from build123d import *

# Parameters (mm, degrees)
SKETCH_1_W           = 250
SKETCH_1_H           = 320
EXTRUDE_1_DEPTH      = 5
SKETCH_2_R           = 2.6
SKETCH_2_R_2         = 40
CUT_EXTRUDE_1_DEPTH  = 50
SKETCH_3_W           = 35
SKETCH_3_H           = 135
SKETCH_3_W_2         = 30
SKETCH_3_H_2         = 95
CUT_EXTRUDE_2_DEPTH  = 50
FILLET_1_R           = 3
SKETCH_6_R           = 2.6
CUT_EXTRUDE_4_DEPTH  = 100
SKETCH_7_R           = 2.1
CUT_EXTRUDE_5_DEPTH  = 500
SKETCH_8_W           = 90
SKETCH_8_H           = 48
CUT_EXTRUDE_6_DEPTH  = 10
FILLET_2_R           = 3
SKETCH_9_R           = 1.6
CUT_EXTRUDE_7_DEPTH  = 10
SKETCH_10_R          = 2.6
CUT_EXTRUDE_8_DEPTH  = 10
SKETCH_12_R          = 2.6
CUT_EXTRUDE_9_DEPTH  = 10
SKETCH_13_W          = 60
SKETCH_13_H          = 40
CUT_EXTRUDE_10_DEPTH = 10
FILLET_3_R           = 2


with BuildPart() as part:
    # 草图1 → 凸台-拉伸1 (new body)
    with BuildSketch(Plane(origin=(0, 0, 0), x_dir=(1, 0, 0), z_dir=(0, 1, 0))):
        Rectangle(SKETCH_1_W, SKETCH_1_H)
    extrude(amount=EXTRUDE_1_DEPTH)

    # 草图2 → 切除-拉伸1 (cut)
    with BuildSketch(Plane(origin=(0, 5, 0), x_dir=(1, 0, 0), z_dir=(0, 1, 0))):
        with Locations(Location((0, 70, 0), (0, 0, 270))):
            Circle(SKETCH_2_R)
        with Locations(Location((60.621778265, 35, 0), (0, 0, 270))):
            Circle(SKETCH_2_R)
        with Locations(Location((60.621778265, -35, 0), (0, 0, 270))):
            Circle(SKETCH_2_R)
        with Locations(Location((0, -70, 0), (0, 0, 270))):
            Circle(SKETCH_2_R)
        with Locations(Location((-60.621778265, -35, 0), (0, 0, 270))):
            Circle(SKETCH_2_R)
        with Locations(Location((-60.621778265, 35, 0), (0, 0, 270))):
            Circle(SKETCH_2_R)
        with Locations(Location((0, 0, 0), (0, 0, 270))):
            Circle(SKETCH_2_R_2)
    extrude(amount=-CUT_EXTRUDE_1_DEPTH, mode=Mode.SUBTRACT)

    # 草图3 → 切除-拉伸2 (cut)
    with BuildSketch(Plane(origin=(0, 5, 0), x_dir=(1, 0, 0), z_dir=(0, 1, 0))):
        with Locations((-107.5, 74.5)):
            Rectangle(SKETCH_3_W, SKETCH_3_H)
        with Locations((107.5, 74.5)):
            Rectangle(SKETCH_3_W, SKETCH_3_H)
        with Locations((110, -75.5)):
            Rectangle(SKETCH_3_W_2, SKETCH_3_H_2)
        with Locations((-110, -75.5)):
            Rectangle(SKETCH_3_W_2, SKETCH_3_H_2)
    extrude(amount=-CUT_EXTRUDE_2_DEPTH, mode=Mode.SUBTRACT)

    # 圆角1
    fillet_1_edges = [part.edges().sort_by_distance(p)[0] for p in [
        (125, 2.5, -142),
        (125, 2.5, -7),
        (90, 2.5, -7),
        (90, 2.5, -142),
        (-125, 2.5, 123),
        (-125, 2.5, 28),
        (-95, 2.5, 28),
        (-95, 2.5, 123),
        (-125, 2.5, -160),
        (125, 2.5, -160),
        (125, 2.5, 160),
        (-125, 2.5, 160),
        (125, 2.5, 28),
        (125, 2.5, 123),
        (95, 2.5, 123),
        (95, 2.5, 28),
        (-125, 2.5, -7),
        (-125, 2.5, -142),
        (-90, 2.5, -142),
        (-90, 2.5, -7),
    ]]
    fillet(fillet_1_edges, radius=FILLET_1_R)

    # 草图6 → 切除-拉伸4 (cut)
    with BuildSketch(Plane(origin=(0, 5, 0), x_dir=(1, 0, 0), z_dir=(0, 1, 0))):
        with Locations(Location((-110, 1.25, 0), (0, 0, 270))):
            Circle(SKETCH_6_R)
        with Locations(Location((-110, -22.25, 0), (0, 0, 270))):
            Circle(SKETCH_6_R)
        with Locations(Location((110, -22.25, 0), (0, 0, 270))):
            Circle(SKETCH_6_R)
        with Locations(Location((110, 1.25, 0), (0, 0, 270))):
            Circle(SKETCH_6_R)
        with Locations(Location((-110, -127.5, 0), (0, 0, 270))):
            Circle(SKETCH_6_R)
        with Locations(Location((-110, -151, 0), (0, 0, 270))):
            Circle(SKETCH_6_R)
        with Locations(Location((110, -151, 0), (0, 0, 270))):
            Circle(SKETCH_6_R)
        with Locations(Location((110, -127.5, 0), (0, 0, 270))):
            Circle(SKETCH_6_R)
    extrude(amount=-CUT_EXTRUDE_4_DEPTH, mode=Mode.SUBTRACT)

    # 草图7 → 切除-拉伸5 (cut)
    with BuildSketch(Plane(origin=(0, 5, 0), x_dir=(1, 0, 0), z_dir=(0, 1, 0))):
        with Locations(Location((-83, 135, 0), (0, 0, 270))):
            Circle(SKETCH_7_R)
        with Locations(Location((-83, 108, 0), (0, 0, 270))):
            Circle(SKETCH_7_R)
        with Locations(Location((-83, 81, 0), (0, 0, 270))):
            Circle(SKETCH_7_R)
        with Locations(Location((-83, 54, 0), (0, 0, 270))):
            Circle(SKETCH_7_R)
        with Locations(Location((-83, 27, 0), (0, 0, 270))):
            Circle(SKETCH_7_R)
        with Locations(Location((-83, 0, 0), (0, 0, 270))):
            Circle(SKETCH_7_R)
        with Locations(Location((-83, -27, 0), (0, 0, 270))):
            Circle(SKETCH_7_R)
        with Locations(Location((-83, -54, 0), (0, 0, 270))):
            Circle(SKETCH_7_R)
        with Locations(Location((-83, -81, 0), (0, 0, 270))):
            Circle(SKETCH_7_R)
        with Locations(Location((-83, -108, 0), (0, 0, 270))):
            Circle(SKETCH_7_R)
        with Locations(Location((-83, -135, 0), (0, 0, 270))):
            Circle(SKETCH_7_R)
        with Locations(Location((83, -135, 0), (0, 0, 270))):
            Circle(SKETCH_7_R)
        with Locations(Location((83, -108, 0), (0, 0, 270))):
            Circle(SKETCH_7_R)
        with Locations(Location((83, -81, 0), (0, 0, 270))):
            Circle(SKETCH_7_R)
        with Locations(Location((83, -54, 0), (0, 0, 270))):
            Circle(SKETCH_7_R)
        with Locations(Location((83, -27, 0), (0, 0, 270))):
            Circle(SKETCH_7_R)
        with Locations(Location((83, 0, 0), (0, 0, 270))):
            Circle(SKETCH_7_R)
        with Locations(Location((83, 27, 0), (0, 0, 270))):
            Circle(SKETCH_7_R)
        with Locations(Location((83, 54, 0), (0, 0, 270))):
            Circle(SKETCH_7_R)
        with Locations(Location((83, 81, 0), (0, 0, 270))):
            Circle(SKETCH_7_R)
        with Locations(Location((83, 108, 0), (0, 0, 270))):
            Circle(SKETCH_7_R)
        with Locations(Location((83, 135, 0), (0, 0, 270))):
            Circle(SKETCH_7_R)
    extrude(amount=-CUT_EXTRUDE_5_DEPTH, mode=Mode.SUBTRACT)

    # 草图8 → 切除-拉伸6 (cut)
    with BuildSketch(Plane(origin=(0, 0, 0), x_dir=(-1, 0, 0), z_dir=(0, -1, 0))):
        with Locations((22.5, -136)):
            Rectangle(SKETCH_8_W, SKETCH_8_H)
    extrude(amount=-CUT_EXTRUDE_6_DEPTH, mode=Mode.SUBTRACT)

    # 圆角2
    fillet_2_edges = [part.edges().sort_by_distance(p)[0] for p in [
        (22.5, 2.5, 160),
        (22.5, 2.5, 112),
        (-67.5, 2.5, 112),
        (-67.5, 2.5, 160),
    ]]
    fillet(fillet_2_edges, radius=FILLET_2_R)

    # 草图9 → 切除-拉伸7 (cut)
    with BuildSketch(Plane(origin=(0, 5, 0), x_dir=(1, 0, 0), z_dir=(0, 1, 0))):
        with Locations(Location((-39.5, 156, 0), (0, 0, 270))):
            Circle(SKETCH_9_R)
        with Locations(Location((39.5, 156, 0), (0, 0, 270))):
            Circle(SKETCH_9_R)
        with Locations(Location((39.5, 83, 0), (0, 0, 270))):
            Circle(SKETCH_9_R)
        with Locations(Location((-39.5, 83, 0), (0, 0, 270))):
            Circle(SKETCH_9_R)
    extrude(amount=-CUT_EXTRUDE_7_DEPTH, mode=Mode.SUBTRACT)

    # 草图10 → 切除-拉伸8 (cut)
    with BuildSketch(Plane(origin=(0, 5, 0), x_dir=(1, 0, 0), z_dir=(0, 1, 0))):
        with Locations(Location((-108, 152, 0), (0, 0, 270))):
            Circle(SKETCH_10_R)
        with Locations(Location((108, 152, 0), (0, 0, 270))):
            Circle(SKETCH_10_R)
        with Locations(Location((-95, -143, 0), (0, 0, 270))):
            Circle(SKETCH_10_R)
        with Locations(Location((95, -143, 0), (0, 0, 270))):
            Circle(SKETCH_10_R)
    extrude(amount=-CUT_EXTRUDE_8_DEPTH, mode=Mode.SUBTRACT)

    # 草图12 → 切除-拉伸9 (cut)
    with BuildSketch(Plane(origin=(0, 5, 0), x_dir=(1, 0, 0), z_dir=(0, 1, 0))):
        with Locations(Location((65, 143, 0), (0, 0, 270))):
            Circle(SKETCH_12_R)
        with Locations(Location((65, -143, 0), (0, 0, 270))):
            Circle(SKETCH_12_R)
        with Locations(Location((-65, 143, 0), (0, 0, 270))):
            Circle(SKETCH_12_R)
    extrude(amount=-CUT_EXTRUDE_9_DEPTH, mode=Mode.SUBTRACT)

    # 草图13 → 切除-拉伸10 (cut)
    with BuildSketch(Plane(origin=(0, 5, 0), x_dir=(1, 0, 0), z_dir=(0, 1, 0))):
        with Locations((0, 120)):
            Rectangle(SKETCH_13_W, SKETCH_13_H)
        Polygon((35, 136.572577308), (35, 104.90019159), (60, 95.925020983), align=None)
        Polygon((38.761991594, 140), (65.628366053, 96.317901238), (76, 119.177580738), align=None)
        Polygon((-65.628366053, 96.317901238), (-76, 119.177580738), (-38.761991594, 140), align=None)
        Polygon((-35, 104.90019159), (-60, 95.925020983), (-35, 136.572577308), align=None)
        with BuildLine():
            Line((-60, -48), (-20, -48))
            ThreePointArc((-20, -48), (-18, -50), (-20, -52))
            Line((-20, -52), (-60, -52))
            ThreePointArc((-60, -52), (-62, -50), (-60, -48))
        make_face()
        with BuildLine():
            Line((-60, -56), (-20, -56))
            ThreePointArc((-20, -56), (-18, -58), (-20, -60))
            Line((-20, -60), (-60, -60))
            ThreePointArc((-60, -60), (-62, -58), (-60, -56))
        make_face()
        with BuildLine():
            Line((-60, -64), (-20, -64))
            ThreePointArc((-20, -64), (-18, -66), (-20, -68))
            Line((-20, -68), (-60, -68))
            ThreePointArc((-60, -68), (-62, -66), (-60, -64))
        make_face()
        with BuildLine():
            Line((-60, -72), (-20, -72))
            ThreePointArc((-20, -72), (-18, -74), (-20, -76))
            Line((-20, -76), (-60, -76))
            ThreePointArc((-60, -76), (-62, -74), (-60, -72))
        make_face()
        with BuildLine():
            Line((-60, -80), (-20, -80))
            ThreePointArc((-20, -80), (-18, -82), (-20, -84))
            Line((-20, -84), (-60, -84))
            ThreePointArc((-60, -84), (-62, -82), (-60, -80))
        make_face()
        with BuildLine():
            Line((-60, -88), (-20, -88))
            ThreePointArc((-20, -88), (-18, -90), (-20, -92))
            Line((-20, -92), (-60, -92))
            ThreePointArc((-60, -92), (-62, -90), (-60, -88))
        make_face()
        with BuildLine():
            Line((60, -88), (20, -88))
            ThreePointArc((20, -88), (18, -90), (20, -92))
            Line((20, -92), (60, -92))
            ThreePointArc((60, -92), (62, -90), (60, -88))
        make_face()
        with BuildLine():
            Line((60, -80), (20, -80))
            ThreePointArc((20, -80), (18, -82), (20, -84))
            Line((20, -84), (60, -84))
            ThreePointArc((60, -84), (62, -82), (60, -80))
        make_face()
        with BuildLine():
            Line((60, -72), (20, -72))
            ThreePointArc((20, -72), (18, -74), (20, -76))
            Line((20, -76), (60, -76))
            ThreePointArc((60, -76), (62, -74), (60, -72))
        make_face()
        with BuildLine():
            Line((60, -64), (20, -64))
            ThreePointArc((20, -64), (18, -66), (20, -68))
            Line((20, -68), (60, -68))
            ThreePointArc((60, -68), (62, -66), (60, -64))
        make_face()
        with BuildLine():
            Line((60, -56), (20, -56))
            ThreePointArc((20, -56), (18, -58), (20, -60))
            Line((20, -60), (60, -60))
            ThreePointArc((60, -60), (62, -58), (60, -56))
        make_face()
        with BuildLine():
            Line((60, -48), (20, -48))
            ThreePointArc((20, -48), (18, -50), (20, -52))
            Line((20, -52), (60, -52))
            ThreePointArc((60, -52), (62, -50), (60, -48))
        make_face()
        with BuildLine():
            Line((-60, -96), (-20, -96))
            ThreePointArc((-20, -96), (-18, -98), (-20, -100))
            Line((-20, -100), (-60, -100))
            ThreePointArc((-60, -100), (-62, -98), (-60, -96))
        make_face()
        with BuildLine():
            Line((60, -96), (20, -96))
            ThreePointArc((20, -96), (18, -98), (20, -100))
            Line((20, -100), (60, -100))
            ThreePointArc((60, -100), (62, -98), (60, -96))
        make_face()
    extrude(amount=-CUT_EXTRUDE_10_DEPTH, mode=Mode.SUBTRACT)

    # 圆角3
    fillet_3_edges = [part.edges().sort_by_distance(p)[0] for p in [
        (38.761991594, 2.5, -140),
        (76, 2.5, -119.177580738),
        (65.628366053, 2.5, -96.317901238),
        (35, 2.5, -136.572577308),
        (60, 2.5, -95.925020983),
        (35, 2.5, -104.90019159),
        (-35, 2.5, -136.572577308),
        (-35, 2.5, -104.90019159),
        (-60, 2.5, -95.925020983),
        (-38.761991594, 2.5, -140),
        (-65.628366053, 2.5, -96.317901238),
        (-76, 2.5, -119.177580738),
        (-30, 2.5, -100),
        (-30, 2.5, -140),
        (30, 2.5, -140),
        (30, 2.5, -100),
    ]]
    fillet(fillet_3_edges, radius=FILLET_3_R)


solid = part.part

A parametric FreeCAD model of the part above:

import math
import FreeCAD as App
import Part
import Sketcher
Q = App.Units.Quantity


def edges_at(feature, points):
    """Names of the edges that pass closest to the given points."""
    edges = feature.Shape.Edges
    near = lambda p: min(range(len(edges)), key=lambda i: edges[i].distToShape(Part.Vertex(*p))[0])
    return sorted({f"Edge{near(p) + 1}" for p in points})


def add_polygon(sketch, points):
    """Adds a closed chain of lines whose ends are joined by coincident constraints."""
    first, n = sketch.GeometryCount, len(points)
    for a, b in zip(points, points[1:] + points[:1]):
        sketch.addGeometry(Part.LineSegment(App.Vector(*a, 0), App.Vector(*b, 0)), False)
    for i in range(n):
        sketch.addConstraint(Sketcher.Constraint("Coincident", first + i, 2, first + (i + 1) % n, 1))

doc = App.newDocument("Part")
body = doc.addObject("PartDesign::Body", "Body")

sketch1 = body.newObject("Sketcher::SketchObject", "Sketch")
sketch1.AttachmentSupport = (doc.getObject("XZ_Plane"), [""])
sketch1.MapMode = "FlatFace"
add_polygon(sketch1, [(-125, -160), (-125, 160), (125, 160), (125, -160)])
sketch1.addConstraint([
    Sketcher.Constraint("Vertical", 0),
    Sketcher.Constraint("Horizontal", 1),
    Sketcher.Constraint("Vertical", 2),
    Sketcher.Constraint("Horizontal", 3),
    Sketcher.Constraint("Symmetric", 0, 2, 2, 2, -1, 1),
    Sketcher.Constraint("DistanceX", 1, 1, 1, 2, Q("250 mm")),
    Sketcher.Constraint("DistanceY", 0, 1, 0, 2, Q("320 mm")),
])
pad1 = body.newObject("PartDesign::Pad", "Pad")
pad1.Profile = sketch1
pad1.Length = 5
pad1.Reversed = True

sketch2 = body.newObject("Sketcher::SketchObject", "Sketch001")
sketch2.AttachmentSupport = (doc.getObject("XZ_Plane"), [""])
sketch2.MapMode = "FlatFace"
sketch2.AttachmentOffset = App.Placement(App.Vector(0, 0, -5), App.Rotation())
sketch2.addGeometry([
    Part.Circle(App.Vector(0, -70, 0), App.Vector(0, 0, 1), 2.6),
    Part.Circle(App.Vector(60.6, -35, 0), App.Vector(0, 0, 1), 2.6),
    Part.Circle(App.Vector(60.6, 35, 0), App.Vector(0, 0, 1), 2.6),
    Part.Circle(App.Vector(0, 70, 0), App.Vector(0, 0, 1), 2.6),
    Part.Circle(App.Vector(-60.6, 35, 0), App.Vector(0, 0, 1), 2.6),
    Part.Circle(App.Vector(-60.6, -35, 0), App.Vector(0, 0, 1), 2.6),
    Part.Circle(App.Vector(0, 0, 0), App.Vector(0, 0, 1), 40),
], False)
sketch2.addConstraint([
    Sketcher.Constraint("Coincident", 6, 3, -1, 1),
    Sketcher.Constraint("Equal", 0, 1),
    Sketcher.Constraint("Equal", 1, 2),
    Sketcher.Constraint("Equal", 2, 3),
    Sketcher.Constraint("Equal", 3, 4),
    Sketcher.Constraint("Equal", 4, 5),
    Sketcher.Constraint("Symmetric", 0, 3, 3, 3, -1, 1),
    Sketcher.Constraint("Symmetric", 1, 3, 4, 3, -1, 1),
    Sketcher.Constraint("Symmetric", 2, 3, 5, 3, -1, 1),
    Sketcher.Constraint("Symmetric", 2, 3, 4, 3, -2),
    Sketcher.Constraint("PointOnObject", 0, 3, -2),
    Sketcher.Constraint("Diameter", 6, Q("80 mm")),
    Sketcher.Constraint("Diameter", 0, Q("5.2 mm")),
    Sketcher.Constraint("DistanceY", 0, 3, -1, 1, Q("70 mm")),
    Sketcher.Constraint("DistanceY", 1, 3, -1, 1, Q("35 mm")),
    Sketcher.Constraint("DistanceX", -1, 1, 1, 3, Q("60.621778 mm")),
])
pocket1 = body.newObject("PartDesign::Pocket", "Pocket")
pocket1.Profile = sketch2
pocket1.Length = 50
pocket1.Reversed = True

sketch3 = body.newObject("Sketcher::SketchObject", "Sketch002")
sketch3.AttachmentSupport = (doc.getObject("XZ_Plane"), [""])
sketch3.MapMode = "FlatFace"
sketch3.AttachmentOffset = App.Placement(App.Vector(0, 0, -5), App.Rotation())
add_polygon(sketch3, [(-125, -142), (-125, -7), (-90, -7), (-90, -142)])
add_polygon(sketch3, [(90, -142), (90, -7), (125, -7), (125, -142)])
add_polygon(sketch3, [(95, 28), (95, 123), (125, 123), (125, 28)])
add_polygon(sketch3, [(-125, 28), (-125, 123), (-95, 123), (-95, 28)])
sketch3.addConstraint([
    Sketcher.Constraint("Vertical", 0),
    Sketcher.Constraint("Horizontal", 1),
    Sketcher.Constraint("Vertical", 2),
    Sketcher.Constraint("Horizontal", 3),
    Sketcher.Constraint("Vertical", 4),
    Sketcher.Constraint("Horizontal", 5),
    Sketcher.Constraint("Vertical", 6),
    Sketcher.Constraint("Horizontal", 7),
    Sketcher.Constraint("Vertical", 8),
    Sketcher.Constraint("Horizontal", 9),
    Sketcher.Constraint("Vertical", 10),
    Sketcher.Constraint("Horizontal", 11),
    Sketcher.Constraint("Vertical", 12),
    Sketcher.Constraint("Horizontal", 13),
    Sketcher.Constraint("Vertical", 14),
    Sketcher.Constraint("Horizontal", 15),
    Sketcher.Constraint("Symmetric", 1, 2, 4, 2, -2),
    Sketcher.Constraint("Symmetric", 3, 2, 6, 2, -2),
    Sketcher.Constraint("Symmetric", 9, 2, 12, 2, -2),
    Sketcher.Constraint("Symmetric", 11, 2, 14, 2, -2),
    Sketcher.Constraint("Vertical", 6, 2, 9, 2),
    Sketcher.Constraint("DistanceX", 1, 1, 1, 2, Q("35 mm")),
    Sketcher.Constraint("DistanceX", 9, 1, 9, 2, Q("30 mm")),
    Sketcher.Constraint("DistanceY", 0, 1, 0, 2, Q("135 mm")),
    Sketcher.Constraint("DistanceY", 8, 1, 8, 2, Q("95 mm")),
    Sketcher.Constraint("DistanceX", 0, 2, -1, 1, Q("125 mm")),
    Sketcher.Constraint("DistanceY", 0, 2, -1, 1, Q("7 mm")),
    Sketcher.Constraint("DistanceY", -1, 1, 8, 2, Q("123 mm")),
])
pocket2 = body.newObject("PartDesign::Pocket", "Pocket001")
pocket2.Profile = sketch3
pocket2.Length = 50
pocket2.Reversed = True
doc.recompute()

fillet = body.newObject("PartDesign::Fillet", "Fillet")
fillet.Base = (pocket2, edges_at(pocket2, [
    (125, 2.5, -142),
    (125, 2.5, -7),
    (90, 2.5, -7),
    (90, 2.5, -142),
    (-125, 2.5, 123),
    (-125, 2.5, 28),
    (-95, 2.5, 28),
    (-95, 2.5, 123),
    (-125, 2.5, -160),
    (125, 2.5, -160),
    (125, 2.5, 160),
    (-125, 2.5, 160),
    (125, 2.5, 28),
    (125, 2.5, 123),
    (95, 2.5, 123),
    (95, 2.5, 28),
    (-125, 2.5, -7),
    (-125, 2.5, -142),
    (-90, 2.5, -142),
    (-90, 2.5, -7),
]))
fillet.Radius = 3

sketch4 = body.newObject("Sketcher::SketchObject", "Sketch003")
sketch4.AttachmentSupport = (doc.getObject("XZ_Plane"), [""])
sketch4.MapMode = "FlatFace"
sketch4.AttachmentOffset = App.Placement(App.Vector(0, 0, -5), App.Rotation())
sketch4.addGeometry([
    Part.Circle(App.Vector(-110, -1.2, 0), App.Vector(0, 0, 1), 2.6),
    Part.Circle(App.Vector(-110, 22.2, 0), App.Vector(0, 0, 1), 2.6),
    Part.Circle(App.Vector(110, 22.2, 0), App.Vector(0, 0, 1), 2.6),
    Part.Circle(App.Vector(110, -1.2, 0), App.Vector(0, 0, 1), 2.6),
    Part.Circle(App.Vector(-110, 127.5, 0), App.Vector(0, 0, 1), 2.6),
    Part.Circle(App.Vector(-110, 151, 0), App.Vector(0, 0, 1), 2.6),
    Part.Circle(App.Vector(110, 151, 0), App.Vector(0, 0, 1), 2.6),
    Part.Circle(App.Vector(110, 127.5, 0), App.Vector(0, 0, 1), 2.6),
], False)
sketch4.addConstraint([
    Sketcher.Constraint("Equal", 0, 1),
    Sketcher.Constraint("Equal", 1, 2),
    Sketcher.Constraint("Equal", 2, 3),
    Sketcher.Constraint("Equal", 3, 4),
    Sketcher.Constraint("Equal", 4, 5),
    Sketcher.Constraint("Equal", 5, 6),
    Sketcher.Constraint("Equal", 6, 7),
    Sketcher.Constraint("Symmetric", 1, 3, 2, 3, -2),
    Sketcher.Constraint("Symmetric", 0, 3, 3, 3, -2),
    Sketcher.Constraint("Symmetric", 5, 3, 6, 3, -2),
    Sketcher.Constraint("Symmetric", 4, 3, 7, 3, -2),
    Sketcher.Constraint("Vertical", 0, 3, 1, 3),
    Sketcher.Constraint("Vertical", 1, 3, 4, 3),
    Sketcher.Constraint("Vertical", 4, 3, 5, 3),
    Sketcher.Constraint("Diameter", 0, Q("5.2 mm")),
    Sketcher.Constraint("DistanceX", 0, 3, -1, 1, Q("110 mm")),
    Sketcher.Constraint("DistanceY", -1, 1, 5, 3, Q("151 mm")),
    Sketcher.Constraint("DistanceY", -1, 1, 4, 3, Q("127.5 mm")),
    Sketcher.Constraint("DistanceY", 0, 3, 1, 3, Q("23.5 mm")),
    Sketcher.Constraint("DistanceY", 0, 3, -1, 1, Q("1.25 mm")),
])
pocket3 = body.newObject("PartDesign::Pocket", "Pocket002")
pocket3.Profile = sketch4
pocket3.Length = 100
pocket3.Reversed = True

sketch5 = body.newObject("Sketcher::SketchObject", "Sketch004")
sketch5.AttachmentSupport = (doc.getObject("XZ_Plane"), [""])
sketch5.MapMode = "FlatFace"
sketch5.AttachmentOffset = App.Placement(App.Vector(0, 0, -5), App.Rotation())
sketch5.addGeometry([
    Part.Circle(App.Vector(-83, -135, 0), App.Vector(0, 0, 1), 2.1),
    Part.Circle(App.Vector(-83, -108, 0), App.Vector(0, 0, 1), 2.1),
    Part.Circle(App.Vector(-83, -81, 0), App.Vector(0, 0, 1), 2.1),
    Part.Circle(App.Vector(-83, -54, 0), App.Vector(0, 0, 1), 2.1),
    Part.Circle(App.Vector(-83, -27, 0), App.Vector(0, 0, 1), 2.1),
    Part.Circle(App.Vector(-83, 0, 0), App.Vector(0, 0, 1), 2.1),
    Part.Circle(App.Vector(-83, 27, 0), App.Vector(0, 0, 1), 2.1),
    Part.Circle(App.Vector(-83, 54, 0), App.Vector(0, 0, 1), 2.1),
    Part.Circle(App.Vector(-83, 81, 0), App.Vector(0, 0, 1), 2.1),
    Part.Circle(App.Vector(-83, 108, 0), App.Vector(0, 0, 1), 2.1),
    Part.Circle(App.Vector(-83, 135, 0), App.Vector(0, 0, 1), 2.1),
    Part.Circle(App.Vector(83, 135, 0), App.Vector(0, 0, 1), 2.1),
    Part.Circle(App.Vector(83, 108, 0), App.Vector(0, 0, 1), 2.1),
    Part.Circle(App.Vector(83, 81, 0), App.Vector(0, 0, 1), 2.1),
    Part.Circle(App.Vector(83, 54, 0), App.Vector(0, 0, 1), 2.1),
    Part.Circle(App.Vector(83, 27, 0), App.Vector(0, 0, 1), 2.1),
    Part.Circle(App.Vector(83, 0, 0), App.Vector(0, 0, 1), 2.1),
    Part.Circle(App.Vector(83, -27, 0), App.Vector(0, 0, 1), 2.1),
    Part.Circle(App.Vector(83, -54, 0), App.Vector(0, 0, 1), 2.1),
    Part.Circle(App.Vector(83, -81, 0), App.Vector(0, 0, 1), 2.1),
    Part.Circle(App.Vector(83, -108, 0), App.Vector(0, 0, 1), 2.1),
    Part.Circle(App.Vector(83, -135, 0), App.Vector(0, 0, 1), 2.1),
], False)
sketch5.addConstraint([
    Sketcher.Constraint("Equal", 0, 1),
    Sketcher.Constraint("Equal", 1, 2),
    Sketcher.Constraint("Equal", 2, 3),
    Sketcher.Constraint("Equal", 3, 4),
    Sketcher.Constraint("Equal", 4, 5),
    Sketcher.Constraint("Equal", 5, 6),
    Sketcher.Constraint("Equal", 6, 7),
    Sketcher.Constraint("Equal", 7, 8),
    Sketcher.Constraint("Equal", 8, 9),
    Sketcher.Constraint("Equal", 9, 10),
    Sketcher.Constraint("Equal", 10, 11),
    Sketcher.Constraint("Equal", 11, 12),
    Sketcher.Constraint("Equal", 12, 13),
    Sketcher.Constraint("Equal", 13, 14),
    Sketcher.Constraint("Equal", 14, 15),
    Sketcher.Constraint("Equal", 15, 16),
    Sketcher.Constraint("Equal", 16, 17),
    Sketcher.Constraint("Equal", 17, 18),
    Sketcher.Constraint("Equal", 18, 19),
    Sketcher.Constraint("Equal", 19, 20),
    Sketcher.Constraint("Equal", 20, 21),
    Sketcher.Constraint("Symmetric", 0, 3, 11, 3, -1, 1),
    Sketcher.Constraint("Symmetric", 1, 3, 12, 3, -1, 1),
    Sketcher.Constraint("Symmetric", 2, 3, 13, 3, -1, 1),
    Sketcher.Constraint("Symmetric", 3, 3, 14, 3, -1, 1),
    Sketcher.Constraint("Symmetric", 4, 3, 15, 3, -1, 1),
    Sketcher.Constraint("Symmetric", 5, 3, 16, 3, -1, 1),
    Sketcher.Constraint("Symmetric", 6, 3, 17, 3, -1, 1),
    Sketcher.Constraint("Symmetric", 7, 3, 18, 3, -1, 1),
    Sketcher.Constraint("Symmetric", 8, 3, 19, 3, -1, 1),
    Sketcher.Constraint("Symmetric", 9, 3, 20, 3, -1, 1),
    Sketcher.Constraint("Symmetric", 10, 3, 21, 3, -1, 1),
    Sketcher.Constraint("Symmetric", 10, 3, 11, 3, -2),
    Sketcher.Constraint("Symmetric", 9, 3, 12, 3, -2),
    Sketcher.Constraint("Symmetric", 8, 3, 13, 3, -2),
    Sketcher.Constraint("Symmetric", 7, 3, 14, 3, -2),
    Sketcher.Constraint("Symmetric", 6, 3, 15, 3, -2),
    Sketcher.Constraint("PointOnObject", 5, 3, -1),
    Sketcher.Constraint("Vertical", 0, 3, 1, 3),
    Sketcher.Constraint("Vertical", 1, 3, 2, 3),
    Sketcher.Constraint("Vertical", 2, 3, 3, 3),
    Sketcher.Constraint("Vertical", 3, 3, 4, 3),
    Sketcher.Constraint("Vertical", 4, 3, 5, 3),
    Sketcher.Constraint("Diameter", 0, Q("4.2 mm")),
    Sketcher.Constraint("DistanceX", 0, 3, -1, 1, Q("83 mm")),
    Sketcher.Constraint("DistanceY", 0, 3, -1, 1, Q("135 mm")),
    Sketcher.Constraint("DistanceY", 1, 3, -1, 1, Q("108 mm")),
    Sketcher.Constraint("DistanceY", 2, 3, -1, 1, Q("81 mm")),
    Sketcher.Constraint("DistanceY", 3, 3, -1, 1, Q("54 mm")),
    Sketcher.Constraint("DistanceY", 4, 3, -1, 1, Q("27 mm")),
])
pocket4 = body.newObject("PartDesign::Pocket", "Pocket003")
pocket4.Profile = sketch5
pocket4.Length = 500
pocket4.Reversed = True

sketch6 = body.newObject("Sketcher::SketchObject", "Sketch005")
sketch6.AttachmentSupport = (doc.getObject("XZ_Plane"), [""])
sketch6.MapMode = "FlatFace"
add_polygon(sketch6, [(22, 112), (22, 160), (-68, 160), (-68, 112)])
sketch6.addConstraint([
    Sketcher.Constraint("Vertical", 0),
    Sketcher.Constraint("Horizontal", 1),
    Sketcher.Constraint("Vertical", 2),
    Sketcher.Constraint("Horizontal", 3),
    Sketcher.Constraint("DistanceX", 1, 2, 1, 1, Q("90 mm")),
    Sketcher.Constraint("DistanceY", 0, 1, 0, 2, Q("48 mm")),
    Sketcher.Constraint("DistanceY", -1, 1, 0, 2, Q("160 mm")),
    Sketcher.Constraint("DistanceX", -1, 1, 0, 2, Q("22.5 mm")),
])
pocket5 = body.newObject("PartDesign::Pocket", "Pocket004")
pocket5.Profile = sketch6
pocket5.Length = 10
doc.recompute()

fillet2 = body.newObject("PartDesign::Fillet", "Fillet001")
fillet2.Base = (pocket5, edges_at(pocket5, [
    (22.5, 2.5, 160),
    (22.5, 2.5, 112),
    (-67.5, 2.5, 112),
    (-67.5, 2.5, 160),
]))
fillet2.Radius = 3

sketch7 = body.newObject("Sketcher::SketchObject", "Sketch006")
sketch7.AttachmentSupport = (doc.getObject("XZ_Plane"), [""])
sketch7.MapMode = "FlatFace"
sketch7.AttachmentOffset = App.Placement(App.Vector(0, 0, -5), App.Rotation())
sketch7.addGeometry([
    Part.Circle(App.Vector(-39.5, -156, 0), App.Vector(0, 0, 1), 1.6),
    Part.Circle(App.Vector(39.5, -156, 0), App.Vector(0, 0, 1), 1.6),
    Part.Circle(App.Vector(39.5, -83, 0), App.Vector(0, 0, 1), 1.6),
    Part.Circle(App.Vector(-39.5, -83, 0), App.Vector(0, 0, 1), 1.6),
], False)
sketch7.addConstraint([
    Sketcher.Constraint("Equal", 0, 1),
    Sketcher.Constraint("Equal", 1, 2),
    Sketcher.Constraint("Equal", 2, 3),
    Sketcher.Constraint("Symmetric", 0, 3, 1, 3, -2),
    Sketcher.Constraint("Symmetric", 2, 3, 3, 3, -2),
    Sketcher.Constraint("Vertical", 1, 3, 2, 3),
    Sketcher.Constraint("Diameter", 0, Q("3.2 mm")),
    Sketcher.Constraint("DistanceY", 0, 3, -1, 1, Q("156 mm")),
    Sketcher.Constraint("DistanceY", 2, 3, -1, 1, Q("83 mm")),
    Sketcher.Constraint("DistanceX", 0, 3, 1, 3, Q("79 mm")),
])
pocket6 = body.newObject("PartDesign::Pocket", "Pocket005")
pocket6.Profile = sketch7
pocket6.Length = 10
pocket6.Reversed = True

sketch8 = body.newObject("Sketcher::SketchObject", "Sketch007")
sketch8.AttachmentSupport = (doc.getObject("XZ_Plane"), [""])
sketch8.MapMode = "FlatFace"
sketch8.AttachmentOffset = App.Placement(App.Vector(0, 0, -5), App.Rotation())
sketch8.addGeometry([
    Part.Circle(App.Vector(-108, -152, 0), App.Vector(0, 0, 1), 2.6),
    Part.Circle(App.Vector(108, -152, 0), App.Vector(0, 0, 1), 2.6),
    Part.Circle(App.Vector(-95, 143, 0), App.Vector(0, 0, 1), 2.6),
    Part.Circle(App.Vector(95, 143, 0), App.Vector(0, 0, 1), 2.6),
], False)
sketch8.addConstraint([
    Sketcher.Constraint("Equal", 0, 1),
    Sketcher.Constraint("Equal", 1, 2),
    Sketcher.Constraint("Equal", 2, 3),
    Sketcher.Constraint("Symmetric", 0, 3, 1, 3, -2),
    Sketcher.Constraint("Symmetric", 2, 3, 3, 3, -2),
    Sketcher.Constraint("Diameter", 0, Q("5.2 mm")),
    Sketcher.Constraint("DistanceX", 0, 3, -1, 1, Q("108 mm")),
    Sketcher.Constraint("DistanceY", 0, 3, -1, 1, Q("152 mm")),
    Sketcher.Constraint("DistanceX", 2, 3, -1, 1, Q("95 mm")),
    Sketcher.Constraint("DistanceY", -1, 1, 2, 3, Q("143 mm")),
])
pocket7 = body.newObject("PartDesign::Pocket", "Pocket006")
pocket7.Profile = sketch8
pocket7.Length = 10
pocket7.Reversed = True

sketch9 = body.newObject("Sketcher::SketchObject", "Sketch008")
sketch9.AttachmentSupport = (doc.getObject("XZ_Plane"), [""])
sketch9.MapMode = "FlatFace"
sketch9.AttachmentOffset = App.Placement(App.Vector(0, 0, -5), App.Rotation())
sketch9.addGeometry([
    Part.Circle(App.Vector(65, -143, 0), App.Vector(0, 0, 1), 2.6),
    Part.Circle(App.Vector(65, 143, 0), App.Vector(0, 0, 1), 2.6),
    Part.Circle(App.Vector(-65, -143, 0), App.Vector(0, 0, 1), 2.6),
], False)
sketch9.addConstraint([
    Sketcher.Constraint("Equal", 0, 1),
    Sketcher.Constraint("Equal", 1, 2),
    Sketcher.Constraint("Symmetric", 1, 3, 2, 3, -1, 1),
    Sketcher.Constraint("Symmetric", 0, 3, 2, 3, -2),
    Sketcher.Constraint("Diameter", 0, Q("5.2 mm")),
    Sketcher.Constraint("DistanceX", -1, 1, 0, 3, Q("65 mm")),
    Sketcher.Constraint("DistanceY", 0, 3, -1, 1, Q("143 mm")),
])
pocket8 = body.newObject("PartDesign::Pocket", "Pocket007")
pocket8.Profile = sketch9
pocket8.Length = 10
pocket8.Reversed = True

sketch10 = body.newObject("Sketcher::SketchObject", "Sketch009")
sketch10.AttachmentSupport = (doc.getObject("XZ_Plane"), [""])
sketch10.MapMode = "FlatFace"
sketch10.AttachmentOffset = App.Placement(App.Vector(0, 0, -5), App.Rotation())
add_polygon(sketch10, [(-30, -140), (-30, -100), (30, -100), (30, -140)])
add_polygon(sketch10, [(35, -136.6), (35, -104.9), (60, -95.9)])
add_polygon(sketch10, [(38.8, -140), (65.6, -96.3), (76, -119.2)])
add_polygon(sketch10, [(-76, -119.2), (-65.6, -96.3), (-38.8, -140)])
add_polygon(sketch10, [(-60, -95.9), (-35, -104.9), (-35, -136.6)])
sketch10.addGeometry(Part.LineSegment(App.Vector(-20, 48, 0), App.Vector(-60, 48, 0)), False)
sketch10.addGeometry(Part.ArcOfCircle(Part.Circle(App.Vector(-60, 50, 0), App.Vector(0, 0, 1), 2), math.radians(90), math.radians(270)), False)
sketch10.addGeometry(Part.LineSegment(App.Vector(-60, 52, 0), App.Vector(-20, 52, 0)), False)
sketch10.addGeometry(Part.ArcOfCircle(Part.Circle(App.Vector(-20, 50, 0), App.Vector(0, 0, 1), 2), math.radians(-90), math.radians(90)), False)
sketch10.addGeometry(Part.LineSegment(App.Vector(-20, 56, 0), App.Vector(-60, 56, 0)), False)
sketch10.addGeometry(Part.ArcOfCircle(Part.Circle(App.Vector(-60, 58, 0), App.Vector(0, 0, 1), 2), math.radians(90), math.radians(270)), False)
sketch10.addGeometry(Part.LineSegment(App.Vector(-60, 60, 0), App.Vector(-20, 60, 0)), False)
sketch10.addGeometry(Part.ArcOfCircle(Part.Circle(App.Vector(-20, 58, 0), App.Vector(0, 0, 1), 2), math.radians(-90), math.radians(90)), False)
sketch10.addGeometry(Part.LineSegment(App.Vector(-20, 64, 0), App.Vector(-60, 64, 0)), False)
sketch10.addGeometry(Part.ArcOfCircle(Part.Circle(App.Vector(-60, 66, 0), App.Vector(0, 0, 1), 2), math.radians(90), math.radians(270)), False)
sketch10.addGeometry(Part.LineSegment(App.Vector(-60, 68, 0), App.Vector(-20, 68, 0)), False)
sketch10.addGeometry(Part.ArcOfCircle(Part.Circle(App.Vector(-20, 66, 0), App.Vector(0, 0, 1), 2), math.radians(-90), math.radians(90)), False)
sketch10.addGeometry(Part.LineSegment(App.Vector(-20, 72, 0), App.Vector(-60, 72, 0)), False)
sketch10.addGeometry(Part.ArcOfCircle(Part.Circle(App.Vector(-60, 74, 0), App.Vector(0, 0, 1), 2), math.radians(90), math.radians(270)), False)
sketch10.addGeometry(Part.LineSegment(App.Vector(-60, 76, 0), App.Vector(-20, 76, 0)), False)
sketch10.addGeometry(Part.ArcOfCircle(Part.Circle(App.Vector(-20, 74, 0), App.Vector(0, 0, 1), 2), math.radians(-90), math.radians(90)), False)
sketch10.addGeometry(Part.LineSegment(App.Vector(-20, 80, 0), App.Vector(-60, 80, 0)), False)
sketch10.addGeometry(Part.ArcOfCircle(Part.Circle(App.Vector(-60, 82, 0), App.Vector(0, 0, 1), 2), math.radians(90), math.radians(270)), False)
sketch10.addGeometry(Part.LineSegment(App.Vector(-60, 84, 0), App.Vector(-20, 84, 0)), False)
sketch10.addGeometry(Part.ArcOfCircle(Part.Circle(App.Vector(-20, 82, 0), App.Vector(0, 0, 1), 2), math.radians(-90), math.radians(90)), False)
sketch10.addGeometry(Part.LineSegment(App.Vector(-20, 88, 0), App.Vector(-60, 88, 0)), False)
sketch10.addGeometry(Part.ArcOfCircle(Part.Circle(App.Vector(-60, 90, 0), App.Vector(0, 0, 1), 2), math.radians(90), math.radians(270)), False)
sketch10.addGeometry(Part.LineSegment(App.Vector(-60, 92, 0), App.Vector(-20, 92, 0)), False)
sketch10.addGeometry(Part.ArcOfCircle(Part.Circle(App.Vector(-20, 90, 0), App.Vector(0, 0, 1), 2), math.radians(-90), math.radians(90)), False)
sketch10.addGeometry(Part.LineSegment(App.Vector(60, 88, 0), App.Vector(20, 88, 0)), False)
sketch10.addGeometry(Part.ArcOfCircle(Part.Circle(App.Vector(20, 90, 0), App.Vector(0, 0, 1), 2), math.radians(90), math.radians(270)), False)
sketch10.addGeometry(Part.LineSegment(App.Vector(20, 92, 0), App.Vector(60, 92, 0)), False)
sketch10.addGeometry(Part.ArcOfCircle(Part.Circle(App.Vector(60, 90, 0), App.Vector(0, 0, 1), 2), math.radians(-90), math.radians(90)), False)
sketch10.addGeometry(Part.LineSegment(App.Vector(60, 80, 0), App.Vector(20, 80, 0)), False)
sketch10.addGeometry(Part.ArcOfCircle(Part.Circle(App.Vector(20, 82, 0), App.Vector(0, 0, 1), 2), math.radians(90), math.radians(270)), False)
sketch10.addGeometry(Part.LineSegment(App.Vector(20, 84, 0), App.Vector(60, 84, 0)), False)
sketch10.addGeometry(Part.ArcOfCircle(Part.Circle(App.Vector(60, 82, 0), App.Vector(0, 0, 1), 2), math.radians(-90), math.radians(90)), False)
sketch10.addGeometry(Part.LineSegment(App.Vector(60, 72, 0), App.Vector(20, 72, 0)), False)
sketch10.addGeometry(Part.ArcOfCircle(Part.Circle(App.Vector(20, 74, 0), App.Vector(0, 0, 1), 2), math.radians(90), math.radians(270)), False)
sketch10.addGeometry(Part.LineSegment(App.Vector(20, 76, 0), App.Vector(60, 76, 0)), False)
sketch10.addGeometry(Part.ArcOfCircle(Part.Circle(App.Vector(60, 74, 0), App.Vector(0, 0, 1), 2), math.radians(-90), math.radians(90)), False)
sketch10.addGeometry(Part.LineSegment(App.Vector(60, 64, 0), App.Vector(20, 64, 0)), False)
sketch10.addGeometry(Part.ArcOfCircle(Part.Circle(App.Vector(20, 66, 0), App.Vector(0, 0, 1), 2), math.radians(90), math.radians(270)), False)
sketch10.addGeometry(Part.LineSegment(App.Vector(20, 68, 0), App.Vector(60, 68, 0)), False)
sketch10.addGeometry(Part.ArcOfCircle(Part.Circle(App.Vector(60, 66, 0), App.Vector(0, 0, 1), 2), math.radians(-90), math.radians(90)), False)
sketch10.addGeometry(Part.LineSegment(App.Vector(60, 56, 0), App.Vector(20, 56, 0)), False)
sketch10.addGeometry(Part.ArcOfCircle(Part.Circle(App.Vector(20, 58, 0), App.Vector(0, 0, 1), 2), math.radians(90), math.radians(270)), False)
sketch10.addGeometry(Part.LineSegment(App.Vector(20, 60, 0), App.Vector(60, 60, 0)), False)
sketch10.addGeometry(Part.ArcOfCircle(Part.Circle(App.Vector(60, 58, 0), App.Vector(0, 0, 1), 2), math.radians(-90), math.radians(90)), False)
sketch10.addGeometry(Part.LineSegment(App.Vector(60, 48, 0), App.Vector(20, 48, 0)), False)
sketch10.addGeometry(Part.ArcOfCircle(Part.Circle(App.Vector(20, 50, 0), App.Vector(0, 0, 1), 2), math.radians(90), math.radians(270)), False)
sketch10.addGeometry(Part.LineSegment(App.Vector(20, 52, 0), App.Vector(60, 52, 0)), False)
sketch10.addGeometry(Part.ArcOfCircle(Part.Circle(App.Vector(60, 50, 0), App.Vector(0, 0, 1), 2), math.radians(-90), math.radians(90)), False)
sketch10.addGeometry(Part.LineSegment(App.Vector(-20, 96, 0), App.Vector(-60, 96, 0)), False)
sketch10.addGeometry(Part.ArcOfCircle(Part.Circle(App.Vector(-60, 98, 0), App.Vector(0, 0, 1), 2), math.radians(90), math.radians(270)), False)
sketch10.addGeometry(Part.LineSegment(App.Vector(-60, 100, 0), App.Vector(-20, 100, 0)), False)
sketch10.addGeometry(Part.ArcOfCircle(Part.Circle(App.Vector(-20, 98, 0), App.Vector(0, 0, 1), 2), math.radians(-90), math.radians(90)), False)
sketch10.addGeometry(Part.LineSegment(App.Vector(60, 96, 0), App.Vector(20, 96, 0)), False)
sketch10.addGeometry(Part.ArcOfCircle(Part.Circle(App.Vector(20, 98, 0), App.Vector(0, 0, 1), 2), math.radians(90), math.radians(270)), False)
sketch10.addGeometry(Part.LineSegment(App.Vector(20, 100, 0), App.Vector(60, 100, 0)), False)
sketch10.addGeometry(Part.ArcOfCircle(Part.Circle(App.Vector(60, 98, 0), App.Vector(0, 0, 1), 2), math.radians(-90), math.radians(90)), False)
sketch10.addConstraint([
    Sketcher.Constraint("Tangent", 16, 2, 17, 2),
    Sketcher.Constraint("Tangent", 17, 1, 18, 1),
    Sketcher.Constraint("Tangent", 18, 2, 19, 2),
    Sketcher.Constraint("Tangent", 19, 1, 16, 1),
    Sketcher.Constraint("Tangent", 20, 2, 21, 2),
    Sketcher.Constraint("Tangent", 21, 1, 22, 1),
    Sketcher.Constraint("Tangent", 22, 2, 23, 2),
    Sketcher.Constraint("Tangent", 23, 1, 20, 1),
    Sketcher.Constraint("Tangent", 24, 2, 25, 2),
    Sketcher.Constraint("Tangent", 25, 1, 26, 1),
    Sketcher.Constraint("Tangent", 26, 2, 27, 2),
    Sketcher.Constraint("Tangent", 27, 1, 24, 1),
    Sketcher.Constraint("Tangent", 28, 2, 29, 2),
    Sketcher.Constraint("Tangent", 29, 1, 30, 1),
    Sketcher.Constraint("Tangent", 30, 2, 31, 2),
    Sketcher.Constraint("Tangent", 31, 1, 28, 1),
    Sketcher.Constraint("Tangent", 32, 2, 33, 2),
    Sketcher.Constraint("Tangent", 33, 1, 34, 1),
    Sketcher.Constraint("Tangent", 34, 2, 35, 2),
    Sketcher.Constraint("Tangent", 35, 1, 32, 1),
    Sketcher.Constraint("Tangent", 36, 2, 37, 2),
    Sketcher.Constraint("Tangent", 37, 1, 38, 1),
    Sketcher.Constraint("Tangent", 38, 2, 39, 2),
    Sketcher.Constraint("Tangent", 39, 1, 36, 1),
    Sketcher.Constraint("Tangent", 40, 2, 41, 2),
    Sketcher.Constraint("Tangent", 41, 1, 42, 1),
    Sketcher.Constraint("Tangent", 42, 2, 43, 2),
    Sketcher.Constraint("Tangent", 43, 1, 40, 1),
    Sketcher.Constraint("Tangent", 44, 2, 45, 2),
    Sketcher.Constraint("Tangent", 45, 1, 46, 1),
    Sketcher.Constraint("Tangent", 46, 2, 47, 2),
    Sketcher.Constraint("Tangent", 47, 1, 44, 1),
    Sketcher.Constraint("Tangent", 48, 2, 49, 2),
    Sketcher.Constraint("Tangent", 49, 1, 50, 1),
    Sketcher.Constraint("Tangent", 50, 2, 51, 2),
    Sketcher.Constraint("Tangent", 51, 1, 48, 1),
    Sketcher.Constraint("Tangent", 52, 2, 53, 2),
    Sketcher.Constraint("Tangent", 53, 1, 54, 1),
    Sketcher.Constraint("Tangent", 54, 2, 55, 2),
    Sketcher.Constraint("Tangent", 55, 1, 52, 1),
    Sketcher.Constraint("Tangent", 56, 2, 57, 2),
    Sketcher.Constraint("Tangent", 57, 1, 58, 1),
    Sketcher.Constraint("Tangent", 58, 2, 59, 2),
    Sketcher.Constraint("Tangent", 59, 1, 56, 1),
    Sketcher.Constraint("Tangent", 60, 2, 61, 2),
    Sketcher.Constraint("Tangent", 61, 1, 62, 1),
    Sketcher.Constraint("Tangent", 62, 2, 63, 2),
    Sketcher.Constraint("Tangent", 63, 1, 60, 1),
    Sketcher.Constraint("Tangent", 64, 2, 65, 2),
    Sketcher.Constraint("Tangent", 65, 1, 66, 1),
    Sketcher.Constraint("Tangent", 66, 2, 67, 2),
    Sketcher.Constraint("Tangent", 67, 1, 64, 1),
    Sketcher.Constraint("Tangent", 68, 2, 69, 2),
    Sketcher.Constraint("Tangent", 69, 1, 70, 1),
    Sketcher.Constraint("Tangent", 70, 2, 71, 2),
    Sketcher.Constraint("Tangent", 71, 1, 68, 1),
    Sketcher.Constraint("Vertical", 0),
    Sketcher.Constraint("Horizontal", 1),
    Sketcher.Constraint("Vertical", 2),
    Sketcher.Constraint("Horizontal", 3),
    Sketcher.Constraint("Vertical", 4),
    Sketcher.Constraint("Vertical", 14),
    Sketcher.Constraint("Horizontal", 16),
    Sketcher.Constraint("Horizontal", 18),
    Sketcher.Constraint("Horizontal", 20),
    Sketcher.Constraint("Horizontal", 22),
    Sketcher.Constraint("Horizontal", 24),
    Sketcher.Constraint("Horizontal", 26),
    Sketcher.Constraint("Horizontal", 28),
    Sketcher.Constraint("Horizontal", 30),
    Sketcher.Constraint("Horizontal", 32),
    Sketcher.Constraint("Horizontal", 34),
    Sketcher.Constraint("Horizontal", 36),
    Sketcher.Constraint("Horizontal", 38),
    Sketcher.Constraint("Horizontal", 40),
    Sketcher.Constraint("Horizontal", 42),
    Sketcher.Constraint("Horizontal", 44),
    Sketcher.Constraint("Horizontal", 46),
    Sketcher.Constraint("Horizontal", 48),
    Sketcher.Constraint("Horizontal", 50),
    Sketcher.Constraint("Horizontal", 52),
    Sketcher.Constraint("Horizontal", 54),
    Sketcher.Constraint("Horizontal", 56),
    Sketcher.Constraint("Horizontal", 58),
    Sketcher.Constraint("Horizontal", 60),
    Sketcher.Constraint("Horizontal", 62),
    Sketcher.Constraint("Horizontal", 64),
    Sketcher.Constraint("Horizontal", 66),
    Sketcher.Constraint("Horizontal", 68),
    Sketcher.Constraint("Horizontal", 70),
    Sketcher.Constraint("Equal", 19, 21),
    Sketcher.Constraint("Equal", 23, 25),
    Sketcher.Constraint("Equal", 27, 29),
    Sketcher.Constraint("Equal", 31, 33),
    Sketcher.Constraint("Equal", 35, 37),
    Sketcher.Constraint("Equal", 39, 41),
    Sketcher.Constraint("Equal", 43, 45),
    Sketcher.Constraint("Equal", 47, 49),
    Sketcher.Constraint("Equal", 51, 53),
    Sketcher.Constraint("Equal", 55, 57),
    Sketcher.Constraint("Equal", 59, 61),
    Sketcher.Constraint("Equal", 63, 65),
    Sketcher.Constraint("Equal", 67, 69),
    Sketcher.Constraint("Symmetric", 39, 3, 41, 3, -2),
    Sketcher.Constraint("Symmetric", 35, 3, 45, 3, -2),
    Sketcher.Constraint("Symmetric", 31, 3, 49, 3, -2),
    Sketcher.Constraint("Symmetric", 27, 3, 53, 3, -2),
    Sketcher.Constraint("Symmetric", 23, 3, 57, 3, -2),
    Sketcher.Constraint("Symmetric", 19, 3, 61, 3, -2),
    Sketcher.Constraint("Symmetric", 67, 3, 69, 3, -2),
    Sketcher.Constraint("Symmetric", 7, 2, 10, 2, -2),
    Sketcher.Constraint("Symmetric", 9, 2, 11, 2, -2),
    Sketcher.Constraint("Symmetric", 8, 2, 12, 2, -2),
    Sketcher.Constraint("Symmetric", 4, 2, 13, 2, -2),
    Sketcher.Constraint("Symmetric", 5, 2, 15, 2, -2),
    Sketcher.Constraint("Parallel", 6, 7),
    Sketcher.Constraint("Parallel", 11, 15),
    Sketcher.Constraint("Horizontal", 3, 2, 9, 2),
    Sketcher.Constraint("Vertical", 17, 3, 21, 3),
    Sketcher.Constraint("Vertical", 19, 3, 23, 3),
    Sketcher.Constraint("Vertical", 21, 3, 25, 3),
    Sketcher.Constraint("Vertical", 23, 3, 27, 3),
    Sketcher.Constraint("Vertical", 25, 3, 29, 3),
    Sketcher.Constraint("Vertical", 27, 3, 31, 3),
    Sketcher.Constraint("Vertical", 29, 3, 33, 3),
    Sketcher.Constraint("Vertical", 31, 3, 35, 3),
    Sketcher.Constraint("Vertical", 33, 3, 37, 3),
    Sketcher.Constraint("Vertical", 35, 3, 39, 3),
    Sketcher.Constraint("Vertical", 43, 3, 47, 3),
    Sketcher.Constraint("Vertical", 47, 3, 51, 3),
    Sketcher.Constraint("Vertical", 51, 3, 55, 3),
    Sketcher.Constraint("Vertical", 55, 3, 59, 3),
    Sketcher.Constraint("Vertical", 59, 3, 63, 3),
    Sketcher.Constraint("Vertical", 37, 3, 65, 3),
    Sketcher.Constraint("Vertical", 39, 3, 67, 3),
    Sketcher.Constraint("Vertical", 63, 3, 71, 3),
    Sketcher.Constraint("Vertical", 71, 3, 5, 2),
    Sketcher.Constraint("Vertical", 65, 3, 15, 2),
    Sketcher.Constraint("Equal", 70, 0),
    Sketcher.Constraint("Radius", 17, Q("2 mm")),
    Sketcher.Constraint("DistanceX", 1, 1, 1, 2, Q("60 mm")),
    Sketcher.Constraint("DistanceX", 16, 2, 16, 1, Q("40 mm")),
    Sketcher.Constraint("DistanceX", 17, 3, -1, 1, Q("60 mm")),
    Sketcher.Constraint("DistanceY", -1, 1, 17, 3, Q("50 mm")),
    Sketcher.Constraint("DistanceY", -1, 1, 21, 3, Q("58 mm")),
    Sketcher.Constraint("DistanceY", -1, 1, 25, 3, Q("66 mm")),
    Sketcher.Constraint("DistanceY", -1, 1, 29, 3, Q("74 mm")),
    Sketcher.Constraint("DistanceY", -1, 1, 33, 3, Q("82 mm")),
    Sketcher.Constraint("DistanceY", -1, 1, 37, 3, Q("90 mm")),
    Sketcher.Constraint("DistanceY", -1, 1, 65, 3, Q("98 mm")),
    Sketcher.Constraint("DistanceX", 0, 2, -1, 1, Q("30 mm")),
    Sketcher.Constraint("DistanceY", 0, 2, -1, 1, Q("100 mm")),
    Sketcher.Constraint("DistanceX", -1, 1, 4, 2, Q("35 mm")),
    Sketcher.Constraint("DistanceX", -1, 1, 8, 2, Q("76 mm")),
    Sketcher.Constraint("Distance", 9, Q("42.664299 mm")),
    Sketcher.Constraint("DistanceY", 7, 2, -1, 1, Q("96.317901 mm")),
    Sketcher.Constraint("Distance", 5, Q("26.562261 mm")),
    Sketcher.Constraint("Distance", 7, Q("51.282822 mm")),
    Sketcher.Constraint("DistanceY", 4, 2, -1, 1, Q("104.900192 mm")),
    Sketcher.Constraint("DistanceY", 8, 2, -1, 1, Q("119.177581 mm")),
])
pocket9 = body.newObject("PartDesign::Pocket", "Pocket008")
pocket9.Profile = sketch10
pocket9.Length = 10
pocket9.Reversed = True
doc.recompute()

fillet3 = body.newObject("PartDesign::Fillet", "Fillet002")
fillet3.Base = (pocket9, edges_at(pocket9, [
    (38.762, 2.5, -140),
    (76, 2.5, -119.178),
    (65.628, 2.5, -96.318),
    (35, 2.5, -136.573),
    (60, 2.5, -95.925),
    (35, 2.5, -104.9),
    (-35, 2.5, -136.573),
    (-35, 2.5, -104.9),
    (-60, 2.5, -95.925),
    (-38.762, 2.5, -140),
    (-65.628, 2.5, -96.318),
    (-76, 2.5, -119.178),
    (-30, 2.5, -100),
    (-30, 2.5, -140),
    (30, 2.5, -140),
    (30, 2.5, -100),
]))
fillet3.Radius = 2

doc.recompute()
